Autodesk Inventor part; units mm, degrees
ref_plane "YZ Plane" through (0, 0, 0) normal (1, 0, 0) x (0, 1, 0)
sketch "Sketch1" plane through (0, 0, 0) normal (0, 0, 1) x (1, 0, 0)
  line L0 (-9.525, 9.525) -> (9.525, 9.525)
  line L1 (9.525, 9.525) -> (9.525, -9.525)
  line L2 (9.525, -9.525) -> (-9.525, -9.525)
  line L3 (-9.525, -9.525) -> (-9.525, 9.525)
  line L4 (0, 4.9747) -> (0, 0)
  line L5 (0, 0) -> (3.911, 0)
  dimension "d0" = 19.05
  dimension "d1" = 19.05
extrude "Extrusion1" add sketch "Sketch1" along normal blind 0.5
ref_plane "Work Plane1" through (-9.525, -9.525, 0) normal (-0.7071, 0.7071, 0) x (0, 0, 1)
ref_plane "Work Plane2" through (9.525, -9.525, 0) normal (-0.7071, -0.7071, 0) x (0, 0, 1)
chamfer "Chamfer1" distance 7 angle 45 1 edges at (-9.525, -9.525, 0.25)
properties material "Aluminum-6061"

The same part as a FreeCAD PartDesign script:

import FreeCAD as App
import Part
import Sketcher
from FreeCAD import Vector
Q = App.Units.Quantity


def edges_at(feature, points):
    """Names of the edges that pass closest to the given points."""
    edges = feature.Shape.Edges
    near = lambda p: min(range(len(edges)), key=lambda i: edges[i].distToShape(Part.Vertex(*p))[0])
    return sorted({f"Edge{near(p) + 1}" for p in points})


def add_polygon(sketch, points):
    """Adds a closed chain of lines whose ends are joined by coincident constraints."""
    first, n = sketch.GeometryCount, len(points)
    for a, b in zip(points, points[1:] + points[:1]):
        sketch.addGeometry(Part.LineSegment(App.Vector(*a, 0), App.Vector(*b, 0)), False)
    for i in range(n):
        sketch.addConstraint(Sketcher.Constraint("Coincident", first + i, 2, first + (i + 1) % n, 1))

doc = App.newDocument("Part")
params = doc.addObject("Spreadsheet::Sheet", "Params")
for row, (alias, value) in enumerate([
    ("sketch1_width", "19.05 mm"),
    ("pad1_length", "0.5 mm"),
    ("chamfer_size", "7 mm"),
], start=1):
    params.set(f"A{row}", alias)
    params.set(f"B{row}", "=" + value)
    params.setAlias(f"B{row}", alias)

body = doc.addObject("PartDesign::Body", "Body")

sketch1 = body.newObject("Sketcher::SketchObject", "Sketch")
sketch1.AttachmentSupport = (doc.getObject("XY_Plane"), [""])
sketch1.MapMode = "FlatFace"
add_polygon(sketch1, [(9.525, 9.525), (-9.525, 9.525), (-9.525, -9.525), (9.525, -9.525)])
sketch1.addConstraint([
    Sketcher.Constraint("Horizontal", 0),
    Sketcher.Constraint("Vertical", 1),
    Sketcher.Constraint("Horizontal", 2),
    Sketcher.Constraint("Vertical", 3),
    Sketcher.Constraint("Symmetric", 0, 2, 2, 2, -1, 1),
    Sketcher.Constraint("Equal", 2, 1),
    Sketcher.Constraint("DistanceX", 0, 2, 0, 1, Q("19.05 mm")),
])
sketch1.setExpression("Constraints[10]", "Params.sketch1_width")
pad1 = body.newObject("PartDesign::Pad", "Pad")
pad1.Profile = sketch1
pad1.setExpression("Length", "Params.pad1_length")
doc.recompute()

chamfer = body.newObject("PartDesign::Chamfer", "Chamfer")
chamfer.Base = (pad1, edges_at(pad1, [(-9.525, -9.525, 0.25)]))
chamfer.setExpression("Size", "Params.chamfer_size")

doc.recompute()
